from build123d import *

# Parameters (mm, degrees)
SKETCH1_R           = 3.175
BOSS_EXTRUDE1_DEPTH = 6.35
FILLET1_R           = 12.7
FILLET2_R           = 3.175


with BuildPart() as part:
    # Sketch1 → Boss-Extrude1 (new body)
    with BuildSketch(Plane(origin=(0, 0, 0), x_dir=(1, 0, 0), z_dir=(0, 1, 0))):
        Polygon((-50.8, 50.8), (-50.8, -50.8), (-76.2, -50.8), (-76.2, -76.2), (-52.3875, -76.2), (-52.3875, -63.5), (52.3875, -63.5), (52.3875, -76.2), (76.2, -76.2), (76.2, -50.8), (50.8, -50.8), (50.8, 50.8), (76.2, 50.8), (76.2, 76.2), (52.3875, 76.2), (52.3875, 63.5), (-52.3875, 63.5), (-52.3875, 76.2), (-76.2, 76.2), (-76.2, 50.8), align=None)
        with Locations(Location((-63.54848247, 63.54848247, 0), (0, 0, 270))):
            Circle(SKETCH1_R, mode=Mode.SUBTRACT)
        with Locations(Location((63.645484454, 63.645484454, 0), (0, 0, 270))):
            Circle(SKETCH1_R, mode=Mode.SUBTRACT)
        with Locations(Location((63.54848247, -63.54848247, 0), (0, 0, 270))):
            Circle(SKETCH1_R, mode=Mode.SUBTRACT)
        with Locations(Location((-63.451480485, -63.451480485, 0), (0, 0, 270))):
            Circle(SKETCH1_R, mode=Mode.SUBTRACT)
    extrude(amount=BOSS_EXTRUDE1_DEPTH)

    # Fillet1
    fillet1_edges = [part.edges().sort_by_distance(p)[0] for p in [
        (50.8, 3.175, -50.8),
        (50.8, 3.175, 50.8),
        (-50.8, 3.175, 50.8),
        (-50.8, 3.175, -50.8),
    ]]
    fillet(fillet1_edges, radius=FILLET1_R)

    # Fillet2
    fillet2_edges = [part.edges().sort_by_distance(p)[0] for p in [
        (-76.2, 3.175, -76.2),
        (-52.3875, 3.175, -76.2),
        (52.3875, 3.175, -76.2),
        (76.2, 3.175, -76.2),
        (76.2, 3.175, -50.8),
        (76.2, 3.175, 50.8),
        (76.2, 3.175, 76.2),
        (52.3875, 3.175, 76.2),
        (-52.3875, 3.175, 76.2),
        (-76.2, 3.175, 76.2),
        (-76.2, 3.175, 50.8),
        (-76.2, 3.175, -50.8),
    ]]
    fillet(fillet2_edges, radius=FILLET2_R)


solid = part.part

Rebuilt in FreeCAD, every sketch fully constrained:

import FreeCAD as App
import Part
import Sketcher
Q = App.Units.Quantity


def edges_at(feature, points):
    """Names of the edges that pass closest to the given points."""
    edges = feature.Shape.Edges
    near = lambda p: min(range(len(edges)), key=lambda i: edges[i].distToShape(Part.Vertex(*p))[0])
    return sorted({f"Edge{near(p) + 1}" for p in points})


def add_polygon(sketch, points):
    """Adds a closed chain of lines whose ends are joined by coincident constraints."""
    first, n = sketch.GeometryCount, len(points)
    for a, b in zip(points, points[1:] + points[:1]):
        sketch.addGeometry(Part.LineSegment(App.Vector(*a, 0), App.Vector(*b, 0)), False)
    for i in range(n):
        sketch.addConstraint(Sketcher.Constraint("Coincident", first + i, 2, first + (i + 1) % n, 1))

doc = App.newDocument("Part")
body = doc.addObject("PartDesign::Body", "Body")

# Sketch on XZ plane
sketch1 = body.newObject("Sketcher::SketchObject", "Sketch")
sketch1.AttachmentSupport = (doc.getObject("XZ_Plane"), [""])
sketch1.MapMode = "FlatFace"
add_polygon(sketch1, [(-50.8, -50.8), (-50.8, 50.8), (-76.2, 50.8), (-76.2, 76.2), (-52.4, 76.2), (-52.4, 63.5), (52.4, 63.5), (52.4, 76.2), (76.2, 76.2), (76.2, 50.8), (50.8, 50.8), (50.8, -50.8), (76.2, -50.8), (76.2, -76.2), (52.4, -76.2), (52.4, -63.5), (-52.4, -63.5), (-52.4, -76.2), (-76.2, -76.2), (-76.2, -50.8)])  # lines 0-19
sketch1.addGeometry(Part.Circle(App.Vector(-63.5, 63.5, 0), App.Vector(0, 0, 1), 3.2), False)  # 20
sketch1.addGeometry(Part.Circle(App.Vector(63.5, 63.5, 0), App.Vector(0, 0, 1), 3.2), False)  # 21
sketch1.addGeometry(Part.Circle(App.Vector(-63.5, -63.5, 0), App.Vector(0, 0, 1), 3.2), False)  # 22
sketch1.addGeometry(Part.Circle(App.Vector(63.6, -63.6, 0), App.Vector(0, 0, 1), 3.2), False)  # 23
sketch1.addConstraint([
    Sketcher.Constraint("Vertical", 0),
    Sketcher.Constraint("Horizontal", 1),
    Sketcher.Constraint("Vertical", 2),
    Sketcher.Constraint("Horizontal", 3),
    Sketcher.Constraint("Vertical", 4),
    Sketcher.Constraint("Horizontal", 5),
    Sketcher.Constraint("Vertical", 6),
    Sketcher.Constraint("Horizontal", 7),
    Sketcher.Constraint("Vertical", 8),
    Sketcher.Constraint("Horizontal", 9),
    Sketcher.Constraint("Vertical", 10),
    Sketcher.Constraint("Horizontal", 11),
    Sketcher.Constraint("Vertical", 12),
    Sketcher.Constraint("Horizontal", 13),
    Sketcher.Constraint("Vertical", 14),
    Sketcher.Constraint("Horizontal", 15),
    Sketcher.Constraint("Vertical", 16),
    Sketcher.Constraint("Horizontal", 17),
    Sketcher.Constraint("Vertical", 18),
    Sketcher.Constraint("Horizontal", 19),
    Sketcher.Constraint("Equal", 20, 21),
    Sketcher.Constraint("Equal", 21, 22),
    Sketcher.Constraint("Equal", 22, 23),
    Sketcher.Constraint("Symmetric", 21, 3, 22, 3, -1, 1),
    Sketcher.Constraint("Symmetric", 0, 2, 10, 2, -1, 1),
    Sketcher.Constraint("Symmetric", 2, 2, 12, 2, -1, 1),
    Sketcher.Constraint("Symmetric", 4, 2, 14, 2, -1, 1),
    Sketcher.Constraint("Symmetric", 6, 2, 16, 2, -1, 1),
    Sketcher.Constraint("Symmetric", 8, 2, 18, 2, -1, 1),
    Sketcher.Constraint("Symmetric", 3, 2, 6, 2, -2),
    Sketcher.Constraint("Symmetric", 1, 2, 8, 2, -2),
    Sketcher.Constraint("Equal", 19, 2),
    Sketcher.Constraint("Diameter", 20, Q("0.25 in")),
    Sketcher.Constraint("DistanceX", 1, 2, 1, 1, Q("1 in")),
    Sketcher.Constraint("DistanceY", 0, 1, 0, 2, Q("4 in")),
    Sketcher.Constraint("DistanceY", 4, 2, 4, 1, Q("0.5 in")),
    Sketcher.Constraint("DistanceX", 0, 2, -1, 1, Q("2 in")),
    Sketcher.Constraint("DistanceX", 3, 1, 3, 2, Q("0.9375 in")),
    Sketcher.Constraint("DistanceY", 20, 3, 21, 3, 0.097002),
    Sketcher.Constraint("DistanceX", 22, 3, 20, 3, 0.097002),
    Sketcher.Constraint("DistanceX", 21, 3, 23, 3, 0.097002),
    Sketcher.Constraint("DistanceY", 23, 3, 22, 3, 0.097002),
    Sketcher.Constraint("DistanceX", 20, 3, -1, 1, 63.45148),
    Sketcher.Constraint("DistanceY", -1, 1, 20, 3, 63.45148),
])
pad1 = body.newObject("PartDesign::Pad", "Pad")
pad1.Profile = sketch1
pad1.Length = Q("0.25 in")
pad1.Reversed = True
doc.recompute()

fillet = body.newObject("PartDesign::Fillet", "Fillet")
fillet.Base = (pad1, edges_at(pad1, [
    (50.8, 3.175, -50.8),
    (50.8, 3.175, 50.8),
    (-50.8, 3.175, 50.8),
    (-50.8, 3.175, -50.8),
]))
fillet.Radius = Q("0.5 in")
doc.recompute()

fillet2 = body.newObject("PartDesign::Fillet", "Fillet001")
fillet2.Base = (fillet, edges_at(fillet, [
    (-76.2, 3.175, -76.2),
    (-52.388, 3.175, -76.2),
    (52.388, 3.175, -76.2),
    (76.2, 3.175, -76.2),
    (76.2, 3.175, -50.8),
    (76.2, 3.175, 50.8),
    (76.2, 3.175, 76.2),
    (52.388, 3.175, 76.2),
    (-52.388, 3.175, 76.2),
    (-76.2, 3.175, 76.2),
    (-76.2, 3.175, 50.8),
    (-76.2, 3.175, -50.8),
]))
fillet2.Radius = Q("0.125 in")

doc.recompute()
